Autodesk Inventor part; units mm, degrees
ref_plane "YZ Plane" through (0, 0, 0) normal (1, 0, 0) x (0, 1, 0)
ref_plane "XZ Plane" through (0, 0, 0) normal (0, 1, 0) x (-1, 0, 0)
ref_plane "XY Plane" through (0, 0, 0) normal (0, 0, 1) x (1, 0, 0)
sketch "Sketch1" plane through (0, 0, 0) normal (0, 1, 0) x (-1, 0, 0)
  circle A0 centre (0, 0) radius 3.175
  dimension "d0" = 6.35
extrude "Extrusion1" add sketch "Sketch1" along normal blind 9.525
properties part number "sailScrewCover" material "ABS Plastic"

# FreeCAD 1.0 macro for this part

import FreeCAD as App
import Part
import Sketcher
from FreeCAD import Vector
Q = App.Units.Quantity

doc = App.newDocument("Part")
body = doc.addObject("PartDesign::Body", "Body")

# Sketch on XZ plane
sketch1 = body.newObject("Sketcher::SketchObject", "Sketch")
sketch1.AttachmentSupport = (doc.getObject("XZ_Plane"), [""])
sketch1.MapMode = "FlatFace"
sketch1.addGeometry(Part.Circle(Vector(0, 0, 0), Vector(0, 0, 1), 3.2), False)
sketch1.addConstraint(Sketcher.Constraint("Coincident", 0, 3, -1, 1))
sketch1.addConstraint(Sketcher.Constraint("Diameter", 0, Q("0.25 in")))
pad1 = body.newObject("PartDesign::Pad", "Pad")
pad1.Profile = sketch1
pad1.Length = Q("0.375 in")
pad1.Reversed = True

doc.recompute()
